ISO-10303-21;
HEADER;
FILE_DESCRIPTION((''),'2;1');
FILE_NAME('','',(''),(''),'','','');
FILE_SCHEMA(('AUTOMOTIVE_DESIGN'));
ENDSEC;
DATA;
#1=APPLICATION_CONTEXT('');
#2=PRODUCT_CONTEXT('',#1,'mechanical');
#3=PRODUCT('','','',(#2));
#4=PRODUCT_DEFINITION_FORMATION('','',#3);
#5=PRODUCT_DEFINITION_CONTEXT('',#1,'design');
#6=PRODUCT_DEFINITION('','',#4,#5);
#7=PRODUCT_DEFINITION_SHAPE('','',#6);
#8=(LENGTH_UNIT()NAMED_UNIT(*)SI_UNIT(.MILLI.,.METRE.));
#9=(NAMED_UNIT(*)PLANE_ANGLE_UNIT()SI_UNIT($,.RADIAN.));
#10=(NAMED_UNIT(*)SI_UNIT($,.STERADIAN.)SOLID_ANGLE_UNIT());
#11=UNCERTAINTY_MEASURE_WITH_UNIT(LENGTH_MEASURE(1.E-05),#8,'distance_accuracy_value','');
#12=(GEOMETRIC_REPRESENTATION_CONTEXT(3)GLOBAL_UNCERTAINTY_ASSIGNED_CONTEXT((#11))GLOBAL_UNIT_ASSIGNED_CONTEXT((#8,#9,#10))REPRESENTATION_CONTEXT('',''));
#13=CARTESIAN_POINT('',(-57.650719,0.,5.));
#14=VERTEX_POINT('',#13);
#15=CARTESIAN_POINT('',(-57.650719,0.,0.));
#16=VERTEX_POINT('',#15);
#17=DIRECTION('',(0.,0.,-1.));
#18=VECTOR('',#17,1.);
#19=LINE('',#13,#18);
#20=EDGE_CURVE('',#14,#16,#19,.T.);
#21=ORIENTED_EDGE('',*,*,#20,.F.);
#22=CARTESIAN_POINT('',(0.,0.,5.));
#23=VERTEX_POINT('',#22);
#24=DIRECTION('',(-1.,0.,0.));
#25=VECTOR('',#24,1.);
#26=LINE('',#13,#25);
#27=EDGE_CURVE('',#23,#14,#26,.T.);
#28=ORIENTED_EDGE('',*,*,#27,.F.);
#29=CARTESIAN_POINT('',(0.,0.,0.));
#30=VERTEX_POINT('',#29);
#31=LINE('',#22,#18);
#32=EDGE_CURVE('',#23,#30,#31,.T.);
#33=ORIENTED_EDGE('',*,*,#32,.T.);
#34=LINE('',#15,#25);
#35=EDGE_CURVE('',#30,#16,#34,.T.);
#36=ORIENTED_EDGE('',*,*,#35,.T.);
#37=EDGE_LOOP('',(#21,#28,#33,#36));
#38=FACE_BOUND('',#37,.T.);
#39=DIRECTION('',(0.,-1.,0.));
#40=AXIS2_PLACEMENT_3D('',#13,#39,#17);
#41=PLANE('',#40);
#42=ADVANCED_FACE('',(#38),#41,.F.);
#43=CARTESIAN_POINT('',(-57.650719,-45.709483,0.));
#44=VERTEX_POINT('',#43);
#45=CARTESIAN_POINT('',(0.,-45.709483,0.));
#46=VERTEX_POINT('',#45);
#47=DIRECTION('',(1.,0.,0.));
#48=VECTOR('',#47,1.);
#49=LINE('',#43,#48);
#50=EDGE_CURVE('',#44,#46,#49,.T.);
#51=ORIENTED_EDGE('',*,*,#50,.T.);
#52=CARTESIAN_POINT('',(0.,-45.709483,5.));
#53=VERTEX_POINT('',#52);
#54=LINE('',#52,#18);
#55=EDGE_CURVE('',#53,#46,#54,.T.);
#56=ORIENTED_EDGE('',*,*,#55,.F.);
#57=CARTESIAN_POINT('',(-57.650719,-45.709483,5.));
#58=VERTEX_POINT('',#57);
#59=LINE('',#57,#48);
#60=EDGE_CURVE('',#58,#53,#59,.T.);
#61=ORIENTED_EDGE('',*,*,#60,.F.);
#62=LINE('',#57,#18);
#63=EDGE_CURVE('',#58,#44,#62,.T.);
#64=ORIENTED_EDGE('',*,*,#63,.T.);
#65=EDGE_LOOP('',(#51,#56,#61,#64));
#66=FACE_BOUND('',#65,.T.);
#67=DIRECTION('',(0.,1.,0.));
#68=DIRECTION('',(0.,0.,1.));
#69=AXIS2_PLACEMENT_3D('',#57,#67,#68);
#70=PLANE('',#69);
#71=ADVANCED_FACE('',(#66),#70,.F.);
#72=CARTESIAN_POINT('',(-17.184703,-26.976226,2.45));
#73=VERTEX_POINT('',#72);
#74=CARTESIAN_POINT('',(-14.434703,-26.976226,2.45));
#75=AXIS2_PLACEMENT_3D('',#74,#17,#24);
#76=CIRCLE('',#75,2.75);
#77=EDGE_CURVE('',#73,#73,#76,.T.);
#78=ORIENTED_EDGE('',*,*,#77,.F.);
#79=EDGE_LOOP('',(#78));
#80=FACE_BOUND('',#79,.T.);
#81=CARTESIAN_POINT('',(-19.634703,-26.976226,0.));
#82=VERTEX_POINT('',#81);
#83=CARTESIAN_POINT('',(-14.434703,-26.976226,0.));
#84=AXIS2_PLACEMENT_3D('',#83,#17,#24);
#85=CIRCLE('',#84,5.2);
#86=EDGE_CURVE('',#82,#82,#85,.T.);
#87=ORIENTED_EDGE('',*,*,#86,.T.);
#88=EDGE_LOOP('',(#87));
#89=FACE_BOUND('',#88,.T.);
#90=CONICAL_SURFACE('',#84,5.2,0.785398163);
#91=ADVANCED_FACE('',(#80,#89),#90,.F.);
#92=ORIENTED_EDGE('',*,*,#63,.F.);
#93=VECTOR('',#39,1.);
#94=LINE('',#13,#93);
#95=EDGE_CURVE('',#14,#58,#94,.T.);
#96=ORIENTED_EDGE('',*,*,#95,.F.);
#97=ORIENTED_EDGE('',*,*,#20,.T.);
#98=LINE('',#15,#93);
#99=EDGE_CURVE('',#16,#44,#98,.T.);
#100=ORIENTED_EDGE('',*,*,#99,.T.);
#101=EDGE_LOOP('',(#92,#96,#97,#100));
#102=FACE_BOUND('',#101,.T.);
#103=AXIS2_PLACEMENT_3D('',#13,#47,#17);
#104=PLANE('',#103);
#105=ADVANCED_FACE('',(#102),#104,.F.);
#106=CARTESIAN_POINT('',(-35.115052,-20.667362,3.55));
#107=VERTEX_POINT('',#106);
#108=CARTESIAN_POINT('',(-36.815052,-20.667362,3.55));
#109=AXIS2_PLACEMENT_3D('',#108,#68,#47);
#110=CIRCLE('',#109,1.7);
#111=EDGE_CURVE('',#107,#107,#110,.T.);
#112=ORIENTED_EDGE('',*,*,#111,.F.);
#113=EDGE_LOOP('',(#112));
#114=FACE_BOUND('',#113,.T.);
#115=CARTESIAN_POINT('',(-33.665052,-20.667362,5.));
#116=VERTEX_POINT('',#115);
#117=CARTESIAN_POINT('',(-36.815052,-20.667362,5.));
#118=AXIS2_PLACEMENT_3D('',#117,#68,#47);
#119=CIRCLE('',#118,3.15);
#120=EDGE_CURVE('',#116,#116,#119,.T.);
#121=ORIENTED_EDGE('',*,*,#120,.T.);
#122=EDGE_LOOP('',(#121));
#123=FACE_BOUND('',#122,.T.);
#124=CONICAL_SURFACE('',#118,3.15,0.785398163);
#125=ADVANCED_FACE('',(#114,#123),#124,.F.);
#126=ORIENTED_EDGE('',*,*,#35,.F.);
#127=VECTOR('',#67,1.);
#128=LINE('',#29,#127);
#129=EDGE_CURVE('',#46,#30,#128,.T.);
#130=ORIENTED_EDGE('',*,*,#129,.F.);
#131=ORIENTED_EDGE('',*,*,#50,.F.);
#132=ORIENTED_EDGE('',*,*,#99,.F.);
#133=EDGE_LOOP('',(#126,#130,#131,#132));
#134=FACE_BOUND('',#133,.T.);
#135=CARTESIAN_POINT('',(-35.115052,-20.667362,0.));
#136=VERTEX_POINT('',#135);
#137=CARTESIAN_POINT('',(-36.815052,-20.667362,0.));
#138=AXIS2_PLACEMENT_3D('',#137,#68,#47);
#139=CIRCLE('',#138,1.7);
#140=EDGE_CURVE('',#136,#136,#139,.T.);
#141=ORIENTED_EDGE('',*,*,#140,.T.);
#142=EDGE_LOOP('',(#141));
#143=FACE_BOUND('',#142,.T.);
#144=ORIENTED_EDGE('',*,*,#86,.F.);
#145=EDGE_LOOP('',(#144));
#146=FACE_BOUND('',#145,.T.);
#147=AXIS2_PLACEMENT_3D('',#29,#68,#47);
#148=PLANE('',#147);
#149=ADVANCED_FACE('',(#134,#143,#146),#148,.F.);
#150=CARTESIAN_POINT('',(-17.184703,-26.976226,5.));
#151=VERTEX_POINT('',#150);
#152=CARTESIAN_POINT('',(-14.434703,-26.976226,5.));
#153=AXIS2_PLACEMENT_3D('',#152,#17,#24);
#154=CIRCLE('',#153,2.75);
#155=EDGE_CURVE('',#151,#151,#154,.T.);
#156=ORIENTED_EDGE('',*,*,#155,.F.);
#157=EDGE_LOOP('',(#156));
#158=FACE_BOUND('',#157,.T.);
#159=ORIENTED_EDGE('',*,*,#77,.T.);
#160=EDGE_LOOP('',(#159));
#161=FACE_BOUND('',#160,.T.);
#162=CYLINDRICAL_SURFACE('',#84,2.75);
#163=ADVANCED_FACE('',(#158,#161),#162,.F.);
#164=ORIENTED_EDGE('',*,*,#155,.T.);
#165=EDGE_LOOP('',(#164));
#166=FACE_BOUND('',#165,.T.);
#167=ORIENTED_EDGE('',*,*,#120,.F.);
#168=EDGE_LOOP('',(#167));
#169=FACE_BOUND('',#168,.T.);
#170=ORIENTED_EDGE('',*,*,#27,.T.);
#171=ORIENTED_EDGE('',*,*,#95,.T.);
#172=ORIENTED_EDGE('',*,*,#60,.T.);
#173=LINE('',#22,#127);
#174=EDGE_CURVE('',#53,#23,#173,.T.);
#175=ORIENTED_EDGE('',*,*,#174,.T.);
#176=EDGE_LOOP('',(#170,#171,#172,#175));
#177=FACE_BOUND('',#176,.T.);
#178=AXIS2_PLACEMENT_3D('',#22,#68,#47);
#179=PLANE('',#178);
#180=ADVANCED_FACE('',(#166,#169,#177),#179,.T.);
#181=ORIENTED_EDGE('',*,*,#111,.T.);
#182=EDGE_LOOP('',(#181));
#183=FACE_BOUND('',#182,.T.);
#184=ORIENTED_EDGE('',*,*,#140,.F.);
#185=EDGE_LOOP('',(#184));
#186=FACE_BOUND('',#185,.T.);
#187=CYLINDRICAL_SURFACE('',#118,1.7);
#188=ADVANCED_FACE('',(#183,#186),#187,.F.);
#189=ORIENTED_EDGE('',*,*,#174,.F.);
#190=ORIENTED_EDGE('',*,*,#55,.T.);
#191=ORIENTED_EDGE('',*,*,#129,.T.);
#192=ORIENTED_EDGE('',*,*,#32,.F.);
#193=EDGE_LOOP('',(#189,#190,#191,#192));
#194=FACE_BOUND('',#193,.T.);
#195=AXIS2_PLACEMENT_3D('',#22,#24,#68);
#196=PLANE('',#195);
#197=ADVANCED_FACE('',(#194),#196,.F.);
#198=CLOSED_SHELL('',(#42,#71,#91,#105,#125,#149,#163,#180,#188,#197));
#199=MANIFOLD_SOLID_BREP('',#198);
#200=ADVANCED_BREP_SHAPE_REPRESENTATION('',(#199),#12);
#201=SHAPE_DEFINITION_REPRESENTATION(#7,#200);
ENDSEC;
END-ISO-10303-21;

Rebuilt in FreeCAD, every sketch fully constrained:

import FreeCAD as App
import Part
import Sketcher
Q = App.Units.Quantity


def add_polygon(sketch, points):
    """Adds a closed chain of lines whose ends are joined by coincident constraints."""
    first, n = sketch.GeometryCount, len(points)
    for a, b in zip(points, points[1:] + points[:1]):
        sketch.addGeometry(Part.LineSegment(App.Vector(*a, 0), App.Vector(*b, 0)), False)
    for i in range(n):
        sketch.addConstraint(Sketcher.Constraint("Coincident", first + i, 2, first + (i + 1) % n, 1))

doc = App.newDocument("Part")
body = doc.addObject("PartDesign::Body", "Body")

# Sketch on XY plane
sketch1 = body.newObject("Sketcher::SketchObject", "Sketch")
sketch1.AttachmentSupport = (doc.getObject("XY_Plane"), [""])
sketch1.MapMode = "FlatFace"
add_polygon(sketch1, [(-57.650719, 0), (-57.650719, -45.709483), (0, -45.709483), (0, 0)])  # lines 0-3
sketch1.addConstraint([
    Sketcher.Constraint("Vertical", 0),
    Sketcher.Constraint("Horizontal", 1),
    Sketcher.Constraint("Vertical", 2),
    Sketcher.Constraint("Horizontal", 3),
    Sketcher.Constraint("Coincident", 2, 2, -1, 1),
    Sketcher.Constraint("DistanceX", 1, 1, 1, 2, 57.650719),
    Sketcher.Constraint("DistanceY", 0, 2, 0, 1, 45.709483),
])
pad1 = body.newObject("PartDesign::Pad", "Pad")
pad1.Profile = sketch1
pad1.Length = 5

# Sketch on XY plane
sketch2 = body.newObject("Sketcher::SketchObject", "Sketch001")
sketch2.AttachmentSupport = (doc.getObject("XY_Plane"), [""])
sketch2.MapMode = "FlatFace"
sketch2.AttachmentOffset = App.Placement(App.Vector(0, 0, 5), App.Rotation())
sketch2.addGeometry(Part.Circle(App.Vector(-36.815052, -20.667362, 0), App.Vector(0, 0, 1), 1.7), False)
sketch2.addConstraint([
    Sketcher.Constraint("Diameter", 0, 3.4),
    Sketcher.Constraint("DistanceY", 0, 3, -1, 1, 20.667362),
    Sketcher.Constraint("DistanceX", 0, 3, -1, 1, 36.815052),
])
doc.recompute()
hole = body.newObject("PartDesign::Hole", "Hole")
hole.Profile = sketch2
hole.ThreadType = "None"
hole.Diameter = 3.4
hole.DepthType = "ThroughAll"
hole.HoleCutType = "Countersink"
hole.HoleCutDiameter = 6.3
hole.HoleCutCountersinkAngle = 90

# Sketch on YZ plane
sketch3 = body.newObject("Sketcher::SketchObject", "Sketch002")
sketch3.AttachmentSupport = (doc.getObject("YZ_Plane"), [""])
sketch3.MapMode = "FlatFace"
sketch3.AttachmentOffset = App.Placement(App.Vector(0, 0, -14.434703), App.Rotation())
add_polygon(sketch3, [(-26.976226, 5), (-26.976226, 0), (-21.776226, 0), (-24.226226, 2.45), (-24.226226, 5)])  # lines 0-4
sketch3.addGeometry(Part.LineSegment(App.Vector(-26.976226, 0, 0), App.Vector(-26.976226, 5, 0)), True)  # axis
sketch3.addConstraint([
    Sketcher.Constraint("Vertical", 0),
    Sketcher.Constraint("Horizontal", 1),
    Sketcher.Constraint("Vertical", 3),
    Sketcher.Constraint("Horizontal", 4),
    Sketcher.Constraint("Vertical", 5),
    Sketcher.Constraint("Coincident", 5, 1, 0, 2),
    Sketcher.Constraint("PointOnObject", 0, 2, -1),
    Sketcher.Constraint("Horizontal", 3, 2, 5, 2),
    Sketcher.Constraint("DistanceY", 0, 2, 0, 1, 5.0),
    Sketcher.Constraint("Angle", 2, Q("135 deg")),
    Sketcher.Constraint("DistanceX", 1, 1, 1, 2, 5.2),
    Sketcher.Constraint("DistanceX", 4, 2, 4, 1, 2.75),
    Sketcher.Constraint("DistanceX", 0, 2, -1, 1, 26.976226),
])
groove = body.newObject("PartDesign::Groove", "Groove")
groove.Profile = sketch3
groove.ReferenceAxis = (sketch3, ["Axis0"])
groove.Angle = 360

doc.recompute()
